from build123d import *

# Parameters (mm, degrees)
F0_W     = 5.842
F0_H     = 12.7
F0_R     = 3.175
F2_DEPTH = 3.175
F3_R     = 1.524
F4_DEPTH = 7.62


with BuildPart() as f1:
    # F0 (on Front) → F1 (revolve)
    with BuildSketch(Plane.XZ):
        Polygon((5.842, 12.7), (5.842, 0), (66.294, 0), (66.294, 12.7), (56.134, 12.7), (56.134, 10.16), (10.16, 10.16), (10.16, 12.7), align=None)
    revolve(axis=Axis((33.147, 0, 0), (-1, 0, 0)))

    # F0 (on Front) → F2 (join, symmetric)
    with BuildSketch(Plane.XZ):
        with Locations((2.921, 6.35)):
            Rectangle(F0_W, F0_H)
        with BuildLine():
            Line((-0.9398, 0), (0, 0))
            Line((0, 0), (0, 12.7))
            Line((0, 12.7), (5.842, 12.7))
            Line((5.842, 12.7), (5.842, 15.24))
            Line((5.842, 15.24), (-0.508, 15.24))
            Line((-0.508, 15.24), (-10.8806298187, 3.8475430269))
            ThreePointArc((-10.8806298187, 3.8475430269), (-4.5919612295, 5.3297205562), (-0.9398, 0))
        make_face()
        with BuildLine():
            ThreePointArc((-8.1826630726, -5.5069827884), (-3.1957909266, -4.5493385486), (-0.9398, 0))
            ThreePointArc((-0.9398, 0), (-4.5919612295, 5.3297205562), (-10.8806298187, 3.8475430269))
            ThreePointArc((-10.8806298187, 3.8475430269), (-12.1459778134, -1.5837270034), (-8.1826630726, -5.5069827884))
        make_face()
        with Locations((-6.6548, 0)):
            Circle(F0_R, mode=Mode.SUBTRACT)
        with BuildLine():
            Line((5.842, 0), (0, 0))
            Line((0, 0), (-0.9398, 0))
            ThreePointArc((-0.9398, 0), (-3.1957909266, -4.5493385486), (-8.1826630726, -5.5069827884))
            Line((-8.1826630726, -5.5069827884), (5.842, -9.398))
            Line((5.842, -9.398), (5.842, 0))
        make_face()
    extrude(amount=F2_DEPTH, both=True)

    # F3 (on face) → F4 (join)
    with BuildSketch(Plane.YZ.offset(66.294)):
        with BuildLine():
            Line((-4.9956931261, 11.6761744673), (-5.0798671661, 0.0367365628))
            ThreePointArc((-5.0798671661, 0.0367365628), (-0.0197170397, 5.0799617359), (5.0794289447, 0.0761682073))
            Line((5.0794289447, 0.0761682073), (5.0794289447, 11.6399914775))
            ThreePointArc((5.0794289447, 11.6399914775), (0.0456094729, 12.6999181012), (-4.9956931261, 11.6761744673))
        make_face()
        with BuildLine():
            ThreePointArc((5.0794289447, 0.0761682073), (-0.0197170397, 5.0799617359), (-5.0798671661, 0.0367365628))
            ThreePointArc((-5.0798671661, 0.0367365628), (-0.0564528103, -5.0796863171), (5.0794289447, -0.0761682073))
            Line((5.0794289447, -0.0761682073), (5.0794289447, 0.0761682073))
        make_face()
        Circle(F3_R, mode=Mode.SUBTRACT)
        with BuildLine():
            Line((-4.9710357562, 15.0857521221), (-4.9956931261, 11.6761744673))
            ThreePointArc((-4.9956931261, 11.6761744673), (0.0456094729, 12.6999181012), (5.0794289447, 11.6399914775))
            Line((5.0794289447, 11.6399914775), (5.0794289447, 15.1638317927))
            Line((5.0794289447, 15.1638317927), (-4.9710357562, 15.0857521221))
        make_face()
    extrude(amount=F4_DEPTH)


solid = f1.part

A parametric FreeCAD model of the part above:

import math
import FreeCAD as App
import Part
import Sketcher
from FreeCAD import Vector
Q = App.Units.Quantity

doc = App.newDocument("Part")
body = doc.addObject("PartDesign::Body", "Body")

# Sketch on XZ plane
sketch1 = body.newObject("Sketcher::SketchObject", "Sketch")
sketch1.AttachmentSupport = (doc.getObject("XZ_Plane"), [""])
sketch1.MapMode = "FlatFace"
sketch1.addGeometry([
    Part.LineSegment(Vector(5.842, 12.7, 0), Vector(5.842, 0, 0)),  # 0
    Part.LineSegment(Vector(5.842, 0, 0), Vector(66.294, 0, 0)),  # 1
    Part.LineSegment(Vector(66.294, 0, 0), Vector(66.294, 12.7, 0)),  # 2
    Part.LineSegment(Vector(66.294, 12.7, 0), Vector(56.134, 12.7, 0)),  # 3
    Part.LineSegment(Vector(56.134, 12.7, 0), Vector(56.134, 10.16, 0)),  # 4
    Part.LineSegment(Vector(56.134, 10.16, 0), Vector(10.16, 10.16, 0)),  # 5
    Part.LineSegment(Vector(10.16, 10.16, 0), Vector(10.16, 12.7, 0)),  # 6
    Part.LineSegment(Vector(10.16, 12.7, 0), Vector(5.842, 12.7, 0)),  # 7
], False)
sketch1.addConstraint([
    Sketcher.Constraint("Coincident", 0, 2, 1, 1),
    Sketcher.Constraint("Coincident", 1, 2, 2, 1),
    Sketcher.Constraint("Coincident", 2, 2, 3, 1),
    Sketcher.Constraint("Coincident", 3, 2, 4, 1),
    Sketcher.Constraint("Coincident", 4, 2, 5, 1),
    Sketcher.Constraint("Coincident", 5, 2, 6, 1),
    Sketcher.Constraint("Coincident", 6, 2, 7, 1),
    Sketcher.Constraint("Coincident", 7, 2, 0, 1),
    Sketcher.Constraint("Vertical", 0),
    Sketcher.Constraint("Horizontal", 1),
    Sketcher.Constraint("Vertical", 2),
    Sketcher.Constraint("Horizontal", 3),
    Sketcher.Constraint("Vertical", 4),
    Sketcher.Constraint("Horizontal", 5),
    Sketcher.Constraint("Vertical", 6),
    Sketcher.Constraint("Horizontal", 7),
    Sketcher.Constraint("PointOnObject", 0, 2, -1),
    Sketcher.Constraint("Horizontal", 3, 2, 6, 2),
    Sketcher.Constraint("DistanceX", 3, 2, 3, 1, Q("0.4 in")),
    Sketcher.Constraint("DistanceY", 0, 2, 0, 1, Q("0.5 in")),
    Sketcher.Constraint("DistanceY", 4, 2, 4, 1, Q("0.1 in")),
    Sketcher.Constraint("DistanceX", 1, 1, 1, 2, Q("2.38 in")),
    Sketcher.Constraint("DistanceX", 5, 2, 5, 1, Q("1.81 in")),
    Sketcher.Constraint("DistanceX", -1, 1, 5, 2, Q("0.4 in")),
])
revolution = body.newObject("PartDesign::Revolution", "Revolution")
revolution.Profile = sketch1
revolution.ReferenceAxis = (sketch1, ["H_Axis"])
revolution.Angle = 360

# Sketch on XZ plane
sketch2 = body.newObject("Sketcher::SketchObject", "Sketch001")
sketch2.AttachmentSupport = (doc.getObject("XZ_Plane"), [""])
sketch2.MapMode = "FlatFace"
sketch2.addGeometry([
    Part.LineSegment(Vector(5.842, 15.24, 0), Vector(-0.508, 15.24, 0)),  # 0
    Part.LineSegment(Vector(-0.508, 15.24, 0), Vector(-10.88063, 3.847543, 0)),  # 1
    Part.ArcOfCircle(Part.Circle(Vector(-6.6548, 0, 0), Vector(0, 0, 1), 5.715), math.radians(137.682695), math.radians(254.493802)),  # 2
    Part.LineSegment(Vector(-8.182663, -5.506983, 0), Vector(5.842, -9.398, 0)),  # 3
    Part.LineSegment(Vector(5.842, -9.398, 0), Vector(5.842, 15.24, 0)),  # 4
    Part.Circle(Vector(-6.6548, 0, 0), Vector(0, 0, 1), 3.175),  # 5
], False)
sketch2.addConstraint([
    Sketcher.Constraint("Coincident", 0, 2, 1, 1),
    Sketcher.Constraint("Tangent", 1, 2, 2, 1),
    Sketcher.Constraint("Tangent", 2, 2, 3, 1),
    Sketcher.Constraint("Coincident", 3, 2, 4, 1),
    Sketcher.Constraint("Coincident", 4, 2, 0, 1),
    Sketcher.Constraint("Horizontal", 0),
    Sketcher.Constraint("Vertical", 4),
    Sketcher.Constraint("Coincident", 5, 3, 2, 3),
    Sketcher.Constraint("PointOnObject", 2, 3, -1),
    Sketcher.Constraint("Diameter", 5, Q("0.25 in")),
    Sketcher.Constraint("Radius", 2, Q("0.225 in")),
    Sketcher.Constraint("DistanceX", 0, 2, 0, 1, Q("0.25 in")),
    Sketcher.Constraint("DistanceY", 4, 1, 4, 2, Q("0.97 in")),
    Sketcher.Constraint("DistanceY", -1, 1, 0, 2, Q("0.6 in")),
    Sketcher.Constraint("DistanceX", 0, 2, -1, 1, Q("0.02 in")),
    Sketcher.Constraint("DistanceX", 2, 3, -1, 1, Q("0.262 in")),
])
pad1 = body.newObject("PartDesign::Pad", "Pad")
pad1.Profile = sketch2
pad1.Length = Q("0.25 in")
pad1.Midplane = True

# Sketch on YZ plane
sketch3 = body.newObject("Sketcher::SketchObject", "Sketch002")
sketch3.AttachmentSupport = (doc.getObject("YZ_Plane"), [""])
sketch3.MapMode = "FlatFace"
sketch3.AttachmentOffset = App.Placement(Vector(0, 0, 2.61 * 25.4), App.Rotation())
sketch3.addGeometry([
    Part.LineSegment(Vector(-4.995693, 11.676174, 0), Vector(-5.079867, 0.036737, 0)),  # 0
    Part.ArcOfCircle(Part.Circle(Vector(0, 0, 0), Vector(0, 0, 1), 5.08), math.radians(179.585656), math.radians(359.14089)),  # 1
    Part.LineSegment(Vector(5.079429, -0.076168, 0), Vector(5.079429, 15.163832, 0)),  # 2
    Part.LineSegment(Vector(5.079429, 15.163832, 0), Vector(-4.971036, 15.085752, 0)),  # 3
    Part.LineSegment(Vector(-4.971036, 15.085752, 0), Vector(-4.995693, 11.676174, 0)),  # 4
    Part.Circle(Vector(0, 0, 0), Vector(0, 0, 1), 1.524),  # 5
], False)
sketch3.addConstraint([
    Sketcher.Constraint("Tangent", 0, 2, 1, 1),
    Sketcher.Constraint("Coincident", 1, 2, 2, 1),
    Sketcher.Constraint("Coincident", 2, 2, 3, 1),
    Sketcher.Constraint("Coincident", 3, 2, 4, 1),
    Sketcher.Constraint("Coincident", 4, 2, 0, 1),
    Sketcher.Constraint("Vertical", 2),
    Sketcher.Constraint("Coincident", 1, 3, -1, 1),
    Sketcher.Constraint("Coincident", 5, 3, -1, 1),
    Sketcher.Constraint("Parallel", 0, 4),
    Sketcher.Constraint("Radius", 1, Q("0.2 in")),
    Sketcher.Constraint("Diameter", 5, Q("0.12 in")),
    Sketcher.Constraint("DistanceY", 2, 1, 2, 2, Q("0.6 in")),
    Sketcher.Constraint("DistanceX", -1, 1, 1, 2, Q("5.079429 mm")),
    Sketcher.Constraint("DistanceY", 3, 2, 2, 2, Q("0.07808 mm")),
    Sketcher.Constraint("DistanceX", 0, 2, 3, 2, Q("0.108831 mm")),
    Sketcher.Constraint("Distance", 0, Q("11.639742 mm")),
])
pad2 = body.newObject("PartDesign::Pad", "Pad001")
pad2.Profile = sketch3
pad2.Length = Q("0.3 in")

doc.recompute()
